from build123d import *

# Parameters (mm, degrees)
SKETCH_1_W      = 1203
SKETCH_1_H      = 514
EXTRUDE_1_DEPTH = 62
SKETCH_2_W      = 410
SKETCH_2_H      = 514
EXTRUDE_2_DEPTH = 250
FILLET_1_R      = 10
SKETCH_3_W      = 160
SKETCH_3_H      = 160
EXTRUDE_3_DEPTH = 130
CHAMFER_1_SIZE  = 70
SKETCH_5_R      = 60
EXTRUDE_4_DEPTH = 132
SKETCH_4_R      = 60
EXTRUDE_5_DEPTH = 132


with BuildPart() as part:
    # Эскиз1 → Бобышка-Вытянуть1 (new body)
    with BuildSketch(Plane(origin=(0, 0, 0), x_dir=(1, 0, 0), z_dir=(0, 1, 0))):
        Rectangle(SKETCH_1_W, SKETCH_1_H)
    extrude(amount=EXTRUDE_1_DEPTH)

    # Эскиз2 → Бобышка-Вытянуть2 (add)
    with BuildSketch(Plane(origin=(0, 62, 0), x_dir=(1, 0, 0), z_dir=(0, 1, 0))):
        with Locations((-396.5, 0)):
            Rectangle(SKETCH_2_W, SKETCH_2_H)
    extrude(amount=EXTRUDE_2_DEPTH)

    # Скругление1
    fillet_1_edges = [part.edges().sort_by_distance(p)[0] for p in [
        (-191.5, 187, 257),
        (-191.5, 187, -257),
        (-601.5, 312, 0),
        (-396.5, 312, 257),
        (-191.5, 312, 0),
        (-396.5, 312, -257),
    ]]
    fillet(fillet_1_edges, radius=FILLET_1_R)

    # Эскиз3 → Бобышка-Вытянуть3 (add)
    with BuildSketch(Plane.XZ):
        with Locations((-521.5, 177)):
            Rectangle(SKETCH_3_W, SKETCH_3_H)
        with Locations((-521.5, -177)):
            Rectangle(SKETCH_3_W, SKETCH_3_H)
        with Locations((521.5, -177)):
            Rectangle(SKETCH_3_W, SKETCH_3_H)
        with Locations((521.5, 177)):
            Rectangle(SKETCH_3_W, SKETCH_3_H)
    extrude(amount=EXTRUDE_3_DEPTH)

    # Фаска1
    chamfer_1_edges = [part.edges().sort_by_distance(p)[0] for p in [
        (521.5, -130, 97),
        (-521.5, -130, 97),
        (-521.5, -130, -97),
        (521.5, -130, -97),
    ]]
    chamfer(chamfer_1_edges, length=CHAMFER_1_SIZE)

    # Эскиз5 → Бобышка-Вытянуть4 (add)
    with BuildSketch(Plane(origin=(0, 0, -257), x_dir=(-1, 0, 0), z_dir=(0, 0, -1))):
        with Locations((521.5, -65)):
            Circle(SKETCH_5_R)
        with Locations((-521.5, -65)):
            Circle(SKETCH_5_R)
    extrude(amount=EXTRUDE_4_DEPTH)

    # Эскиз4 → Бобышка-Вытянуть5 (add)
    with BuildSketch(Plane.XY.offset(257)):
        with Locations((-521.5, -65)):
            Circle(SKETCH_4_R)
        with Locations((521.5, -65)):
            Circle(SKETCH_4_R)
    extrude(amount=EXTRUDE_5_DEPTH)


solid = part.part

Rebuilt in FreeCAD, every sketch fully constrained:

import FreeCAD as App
import Part
import Sketcher
from FreeCAD import Vector
Q = App.Units.Quantity


def edges_at(feature, points):
    """Names of the edges that pass closest to the given points."""
    edges = feature.Shape.Edges
    near = lambda p: min(range(len(edges)), key=lambda i: edges[i].distToShape(Part.Vertex(*p))[0])
    return sorted({f"Edge{near(p) + 1}" for p in points})


def add_polygon(sketch, points):
    """Adds a closed chain of lines whose ends are joined by coincident constraints."""
    first, n = sketch.GeometryCount, len(points)
    for a, b in zip(points, points[1:] + points[:1]):
        sketch.addGeometry(Part.LineSegment(App.Vector(*a, 0), App.Vector(*b, 0)), False)
    for i in range(n):
        sketch.addConstraint(Sketcher.Constraint("Coincident", first + i, 2, first + (i + 1) % n, 1))

doc = App.newDocument("Part")
body = doc.addObject("PartDesign::Body", "Body")

sketch1 = doc.addObject("Sketcher::SketchObject", "Sketch")
body.addObject(sketch1)
sketch1.AttachmentSupport = (doc.XZ_Plane, [""])
sketch1.MapMode = "FlatFace"
add_polygon(sketch1, [(-602, -257), (-602, 257), (602, 257), (602, -257)])
sketch1.addConstraint([
    Sketcher.Constraint("Vertical", 0),
    Sketcher.Constraint("Horizontal", 1),
    Sketcher.Constraint("Vertical", 2),
    Sketcher.Constraint("Horizontal", 3),
    Sketcher.Constraint("Symmetric", 0, 2, 2, 2, -1, 1),
    Sketcher.Constraint("DistanceX", 1, 1, 1, 2, Q("1203 mm")),
    Sketcher.Constraint("DistanceY", 0, 1, 0, 2, Q("514 mm")),
])
pad1 = doc.addObject("PartDesign::Pad", "Pad")
body.addObject(pad1)
pad1.Profile = sketch1
pad1.Length = 62
pad1.Reversed = True

sketch2 = doc.addObject("Sketcher::SketchObject", "Sketch001")
body.addObject(sketch2)
sketch2.AttachmentSupport = (doc.XZ_Plane, [""])
sketch2.MapMode = "FlatFace"
sketch2.AttachmentOffset = App.Placement(Vector(0, 0, -62), App.Rotation())
add_polygon(sketch2, [(-602, -257), (-602, 257), (-192, 257), (-192, -257)])
sketch2.addConstraint([
    Sketcher.Constraint("Vertical", 0),
    Sketcher.Constraint("Horizontal", 1),
    Sketcher.Constraint("Vertical", 2),
    Sketcher.Constraint("Horizontal", 3),
    Sketcher.Constraint("DistanceX", 1, 1, 1, 2, Q("410 mm")),
    Sketcher.Constraint("DistanceY", 0, 1, 0, 2, Q("514 mm")),
    Sketcher.Constraint("DistanceY", -1, 1, 0, 2, Q("257 mm")),
    Sketcher.Constraint("DistanceX", 0, 2, -1, 1, Q("601.5 mm")),
])
pad2 = doc.addObject("PartDesign::Pad", "Pad001")
body.addObject(pad2)
pad2.Profile = sketch2
pad2.Length = 250
pad2.Reversed = True
doc.recompute()

fillet = doc.addObject("PartDesign::Fillet", "Fillet")
body.addObject(fillet)
fillet.Base = (pad2, edges_at(pad2, [
    (-191.5, 187, 257),
    (-191.5, 187, -257),
    (-601.5, 312, 0),
    (-396.5, 312, 257),
    (-191.5, 312, 0),
    (-396.5, 312, -257),
]))
fillet.Radius = 10

sketch3 = doc.addObject("Sketcher::SketchObject", "Sketch002")
body.addObject(sketch3)
sketch3.AttachmentSupport = (doc.XZ_Plane, [""])
sketch3.MapMode = "FlatFace"
add_polygon(sketch3, [(-602, 257), (-602, 97), (-442, 97), (-442, 257)])
add_polygon(sketch3, [(-602, -97), (-602, -257), (-442, -257), (-442, -97)])
add_polygon(sketch3, [(442, -97), (442, -257), (602, -257), (602, -97)])
add_polygon(sketch3, [(442, 257), (442, 97), (602, 97), (602, 257)])
sketch3.addConstraint([
    Sketcher.Constraint("Vertical", 0),
    Sketcher.Constraint("Horizontal", 1),
    Sketcher.Constraint("Vertical", 2),
    Sketcher.Constraint("Horizontal", 3),
    Sketcher.Constraint("Vertical", 4),
    Sketcher.Constraint("Horizontal", 5),
    Sketcher.Constraint("Vertical", 6),
    Sketcher.Constraint("Horizontal", 7),
    Sketcher.Constraint("Vertical", 8),
    Sketcher.Constraint("Horizontal", 9),
    Sketcher.Constraint("Vertical", 10),
    Sketcher.Constraint("Horizontal", 11),
    Sketcher.Constraint("Vertical", 12),
    Sketcher.Constraint("Horizontal", 13),
    Sketcher.Constraint("Vertical", 14),
    Sketcher.Constraint("Horizontal", 15),
    Sketcher.Constraint("Symmetric", 2, 2, 8, 2, -1, 1),
    Sketcher.Constraint("Symmetric", 0, 2, 10, 2, -1, 1),
    Sketcher.Constraint("Symmetric", 6, 2, 12, 2, -1, 1),
    Sketcher.Constraint("Symmetric", 4, 2, 14, 2, -1, 1),
    Sketcher.Constraint("Symmetric", 5, 2, 8, 2, -2),
    Sketcher.Constraint("Symmetric", 7, 2, 10, 2, -2),
    Sketcher.Constraint("Equal", 15, 0),
    Sketcher.Constraint("DistanceX", 1, 1, 1, 2, Q("160 mm")),
    Sketcher.Constraint("DistanceY", -1, 1, 0, 2, Q("97 mm")),
    Sketcher.Constraint("DistanceX", 5, 2, 8, 2, Q("883 mm")),
])
pad3 = doc.addObject("PartDesign::Pad", "Pad002")
body.addObject(pad3)
pad3.Profile = sketch3
pad3.Length = 130
doc.recompute()

chamfer = doc.addObject("PartDesign::Chamfer", "Chamfer")
body.addObject(chamfer)
chamfer.Base = (pad3, edges_at(pad3, [
    (521.5, -130, 97),
    (-521.5, -130, 97),
    (-521.5, -130, -97),
    (521.5, -130, -97),
]))
chamfer.Size = 70

sketch4 = doc.addObject("Sketcher::SketchObject", "Sketch003")
body.addObject(sketch4)
sketch4.AttachmentSupport = (doc.XY_Plane, [""])
sketch4.MapMode = "FlatFace"
sketch4.AttachmentOffset = App.Placement(Vector(0, 0, -257), App.Rotation())
sketch4.addGeometry([
    Part.Circle(Vector(-522, -65, 0), Vector(0, 0, 1), 60),
    Part.Circle(Vector(522, -65, 0), Vector(0, 0, 1), 60),
], False)
sketch4.addConstraint([
    Sketcher.Constraint("Equal", 0, 1),
    Sketcher.Constraint("Symmetric", 0, 3, 1, 3, -2),
    Sketcher.Constraint("Diameter", 0, Q("120 mm")),
    Sketcher.Constraint("DistanceY", 0, 3, -1, 1, Q("65 mm")),
    Sketcher.Constraint("DistanceX", 0, 3, 1, 3, Q("1043 mm")),
])
pad4 = doc.addObject("PartDesign::Pad", "Pad003")
body.addObject(pad4)
pad4.Profile = sketch4
pad4.Length = 132
pad4.Reversed = True

sketch5 = doc.addObject("Sketcher::SketchObject", "Sketch004")
body.addObject(sketch5)
sketch5.AttachmentSupport = (doc.XY_Plane, [""])
sketch5.MapMode = "FlatFace"
sketch5.AttachmentOffset = App.Placement(Vector(0, 0, 257), App.Rotation())
sketch5.addGeometry([
    Part.Circle(Vector(-522, -65, 0), Vector(0, 0, 1), 60),
    Part.Circle(Vector(522, -65, 0), Vector(0, 0, 1), 60),
], False)
sketch5.addConstraint([
    Sketcher.Constraint("Equal", 0, 1),
    Sketcher.Constraint("Symmetric", 0, 3, 1, 3, -2),
    Sketcher.Constraint("Diameter", 0, Q("120 mm")),
    Sketcher.Constraint("DistanceY", 0, 3, -1, 1, Q("65 mm")),
    Sketcher.Constraint("DistanceX", 0, 3, 1, 3, Q("1043 mm")),
])
pad5 = doc.addObject("PartDesign::Pad", "Pad004")
body.addObject(pad5)
pad5.Profile = sketch5
pad5.Length = 132

doc.recompute()
